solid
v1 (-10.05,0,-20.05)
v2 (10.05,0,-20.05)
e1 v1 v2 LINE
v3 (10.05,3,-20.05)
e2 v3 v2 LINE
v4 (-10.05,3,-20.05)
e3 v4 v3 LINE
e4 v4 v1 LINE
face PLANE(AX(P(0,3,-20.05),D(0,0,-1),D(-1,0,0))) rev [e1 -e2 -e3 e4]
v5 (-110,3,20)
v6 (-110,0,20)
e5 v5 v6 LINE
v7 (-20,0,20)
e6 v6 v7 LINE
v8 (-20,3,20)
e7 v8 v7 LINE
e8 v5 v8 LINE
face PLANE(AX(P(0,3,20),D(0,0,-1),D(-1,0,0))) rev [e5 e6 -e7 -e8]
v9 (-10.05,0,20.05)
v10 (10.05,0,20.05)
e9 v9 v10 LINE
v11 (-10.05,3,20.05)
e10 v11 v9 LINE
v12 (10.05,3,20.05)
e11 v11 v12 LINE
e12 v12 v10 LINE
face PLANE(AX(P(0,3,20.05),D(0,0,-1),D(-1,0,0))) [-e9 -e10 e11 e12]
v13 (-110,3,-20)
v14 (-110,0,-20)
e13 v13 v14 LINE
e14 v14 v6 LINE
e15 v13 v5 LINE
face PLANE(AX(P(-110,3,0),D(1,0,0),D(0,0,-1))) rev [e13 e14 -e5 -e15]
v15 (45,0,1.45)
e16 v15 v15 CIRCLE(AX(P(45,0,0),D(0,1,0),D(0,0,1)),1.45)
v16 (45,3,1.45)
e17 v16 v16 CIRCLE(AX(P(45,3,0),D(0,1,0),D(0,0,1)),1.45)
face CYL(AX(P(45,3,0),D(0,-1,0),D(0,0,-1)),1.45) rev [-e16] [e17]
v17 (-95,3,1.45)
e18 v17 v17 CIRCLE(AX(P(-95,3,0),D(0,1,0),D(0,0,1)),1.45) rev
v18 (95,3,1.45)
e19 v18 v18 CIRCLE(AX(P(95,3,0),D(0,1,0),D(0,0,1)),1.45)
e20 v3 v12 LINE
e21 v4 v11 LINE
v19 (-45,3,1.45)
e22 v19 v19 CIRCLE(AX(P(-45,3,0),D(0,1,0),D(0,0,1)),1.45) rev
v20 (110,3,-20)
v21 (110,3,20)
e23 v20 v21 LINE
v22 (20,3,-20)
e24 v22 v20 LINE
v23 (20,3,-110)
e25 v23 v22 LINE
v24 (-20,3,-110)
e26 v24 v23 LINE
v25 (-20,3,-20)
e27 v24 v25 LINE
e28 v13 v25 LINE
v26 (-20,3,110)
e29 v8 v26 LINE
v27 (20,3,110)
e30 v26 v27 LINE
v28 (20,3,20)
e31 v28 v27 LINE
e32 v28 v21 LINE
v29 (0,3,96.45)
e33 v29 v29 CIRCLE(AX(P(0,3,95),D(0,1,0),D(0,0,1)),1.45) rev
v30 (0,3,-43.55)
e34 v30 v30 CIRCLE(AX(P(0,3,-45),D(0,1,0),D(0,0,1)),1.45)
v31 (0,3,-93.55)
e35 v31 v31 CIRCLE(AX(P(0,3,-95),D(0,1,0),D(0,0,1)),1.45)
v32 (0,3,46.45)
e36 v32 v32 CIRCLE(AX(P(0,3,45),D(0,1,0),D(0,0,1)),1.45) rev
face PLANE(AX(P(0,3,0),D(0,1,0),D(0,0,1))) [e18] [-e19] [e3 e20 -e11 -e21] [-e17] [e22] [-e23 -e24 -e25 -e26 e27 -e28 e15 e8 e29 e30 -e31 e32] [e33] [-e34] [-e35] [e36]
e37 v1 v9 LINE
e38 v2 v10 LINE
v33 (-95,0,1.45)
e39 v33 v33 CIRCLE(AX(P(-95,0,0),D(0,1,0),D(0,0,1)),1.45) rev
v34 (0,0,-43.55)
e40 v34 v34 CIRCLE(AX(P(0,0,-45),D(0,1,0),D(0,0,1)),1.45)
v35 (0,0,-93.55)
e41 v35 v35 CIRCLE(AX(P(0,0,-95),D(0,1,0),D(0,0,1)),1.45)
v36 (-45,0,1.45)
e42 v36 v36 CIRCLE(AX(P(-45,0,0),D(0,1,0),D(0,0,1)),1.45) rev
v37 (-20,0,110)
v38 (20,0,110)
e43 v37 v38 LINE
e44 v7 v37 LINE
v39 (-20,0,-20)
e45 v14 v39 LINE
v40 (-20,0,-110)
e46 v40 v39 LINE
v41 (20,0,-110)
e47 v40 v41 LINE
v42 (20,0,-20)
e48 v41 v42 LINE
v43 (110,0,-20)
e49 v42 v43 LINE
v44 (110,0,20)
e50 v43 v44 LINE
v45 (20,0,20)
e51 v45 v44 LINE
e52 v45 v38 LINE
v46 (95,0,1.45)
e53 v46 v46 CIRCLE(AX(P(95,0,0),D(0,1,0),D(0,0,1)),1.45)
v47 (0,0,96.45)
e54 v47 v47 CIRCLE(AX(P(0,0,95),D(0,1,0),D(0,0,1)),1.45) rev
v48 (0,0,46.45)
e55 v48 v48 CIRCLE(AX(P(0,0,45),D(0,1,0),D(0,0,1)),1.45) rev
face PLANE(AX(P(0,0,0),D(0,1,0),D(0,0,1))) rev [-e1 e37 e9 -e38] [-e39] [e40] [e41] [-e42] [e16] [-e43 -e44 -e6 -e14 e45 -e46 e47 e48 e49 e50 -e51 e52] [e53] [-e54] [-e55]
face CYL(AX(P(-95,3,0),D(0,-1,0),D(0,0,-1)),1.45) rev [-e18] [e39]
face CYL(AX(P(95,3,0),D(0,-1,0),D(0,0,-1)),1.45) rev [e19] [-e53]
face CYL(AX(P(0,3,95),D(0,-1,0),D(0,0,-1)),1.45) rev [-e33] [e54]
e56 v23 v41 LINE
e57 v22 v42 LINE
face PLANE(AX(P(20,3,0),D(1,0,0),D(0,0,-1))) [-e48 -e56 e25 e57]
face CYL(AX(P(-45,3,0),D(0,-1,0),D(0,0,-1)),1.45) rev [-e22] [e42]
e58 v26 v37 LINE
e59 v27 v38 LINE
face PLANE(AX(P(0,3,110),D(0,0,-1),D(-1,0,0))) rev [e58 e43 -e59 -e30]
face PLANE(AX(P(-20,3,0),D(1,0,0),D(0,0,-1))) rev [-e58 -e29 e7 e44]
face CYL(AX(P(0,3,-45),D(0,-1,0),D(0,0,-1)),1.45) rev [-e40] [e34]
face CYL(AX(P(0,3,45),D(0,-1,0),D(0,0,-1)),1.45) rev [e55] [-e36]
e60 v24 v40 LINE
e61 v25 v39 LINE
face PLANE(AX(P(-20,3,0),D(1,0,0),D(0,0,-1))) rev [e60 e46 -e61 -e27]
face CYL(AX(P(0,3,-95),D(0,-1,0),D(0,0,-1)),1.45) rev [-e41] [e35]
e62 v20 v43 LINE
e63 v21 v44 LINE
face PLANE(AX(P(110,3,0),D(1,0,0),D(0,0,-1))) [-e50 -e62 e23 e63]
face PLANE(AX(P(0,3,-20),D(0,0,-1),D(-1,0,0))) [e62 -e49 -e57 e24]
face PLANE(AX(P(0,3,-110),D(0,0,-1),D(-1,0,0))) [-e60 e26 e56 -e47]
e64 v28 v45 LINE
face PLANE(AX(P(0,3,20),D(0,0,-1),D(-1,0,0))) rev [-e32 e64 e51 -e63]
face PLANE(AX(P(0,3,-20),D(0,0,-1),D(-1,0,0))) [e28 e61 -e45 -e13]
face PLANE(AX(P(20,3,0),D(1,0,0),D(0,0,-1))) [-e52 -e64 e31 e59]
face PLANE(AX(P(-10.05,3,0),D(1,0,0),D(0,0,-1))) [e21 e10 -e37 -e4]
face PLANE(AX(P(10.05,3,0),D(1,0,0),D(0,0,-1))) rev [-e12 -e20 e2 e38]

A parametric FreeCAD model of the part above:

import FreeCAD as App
import Part
import Sketcher

V = App.Vector


def add_polygon(sketch, points):
    """Adds a closed chain of lines whose ends are joined by coincident constraints."""
    first, n = sketch.GeometryCount, len(points)
    for a, b in zip(points, points[1:] + points[:1]):
        sketch.addGeometry(Part.LineSegment(App.Vector(*a, 0), App.Vector(*b, 0)), False)
    for i in range(n):
        sketch.addConstraint(Sketcher.Constraint("Coincident", first + i, 2, first + (i + 1) % n, 1))

doc = App.newDocument("Part")
body = doc.addObject("PartDesign::Body", "Body")

# Sketch on XZ plane
sketch1 = body.newObject("Sketcher::SketchObject", "Sketch")
sketch1.AttachmentSupport = (doc.getObject("XZ_Plane"), [""])
sketch1.MapMode = "FlatFace"
add_polygon(sketch1, [(20, -110), (-20, -110), (-20, -20), (-110, -20), (-110, 20), (-20, 20), (-20, 110), (20, 110), (20, 20), (110, 20), (110, -20), (20, -20)])  # lines 0-11
sketch1.addGeometry(Part.Circle(V(0, 95, 0), V(0, 0, 1), 1.4), False)  # 12
sketch1.addGeometry(Part.Circle(V(0, 45, 0), V(0, 0, 1), 1.4), False)  # 13
sketch1.addGeometry(Part.Circle(V(95, 0, 0), V(0, 0, 1), 1.4), False)  # 14
sketch1.addGeometry(Part.Circle(V(45, 0, 0), V(0, 0, 1), 1.4), False)  # 15
add_polygon(sketch1, [(-10.1, 20.1), (-10.1, -20.1), (10.1, -20.1), (10.1, 20.1)])  # lines 16-19
sketch1.addGeometry(Part.Circle(V(-45, 0, 0), V(0, 0, 1), 1.4), False)  # 20
sketch1.addGeometry(Part.Circle(V(0, -45, 0), V(0, 0, 1), 1.4), False)  # 21
sketch1.addGeometry(Part.Circle(V(-95, 0, 0), V(0, 0, 1), 1.4), False)  # 22
sketch1.addGeometry(Part.Circle(V(0, -95, 0), V(0, 0, 1), 1.4), False)  # 23
sketch1.addConstraint([
    Sketcher.Constraint("Horizontal", 0),
    Sketcher.Constraint("Vertical", 1),
    Sketcher.Constraint("Horizontal", 2),
    Sketcher.Constraint("Vertical", 3),
    Sketcher.Constraint("Horizontal", 4),
    Sketcher.Constraint("Vertical", 5),
    Sketcher.Constraint("Horizontal", 6),
    Sketcher.Constraint("Vertical", 7),
    Sketcher.Constraint("Horizontal", 8),
    Sketcher.Constraint("Vertical", 9),
    Sketcher.Constraint("Horizontal", 10),
    Sketcher.Constraint("Vertical", 11),
    Sketcher.Constraint("Vertical", 16),
    Sketcher.Constraint("Horizontal", 17),
    Sketcher.Constraint("Vertical", 18),
    Sketcher.Constraint("Horizontal", 19),
    Sketcher.Constraint("Equal", 12, 13),
    Sketcher.Constraint("Equal", 13, 14),
    Sketcher.Constraint("Equal", 14, 15),
    Sketcher.Constraint("Equal", 15, 20),
    Sketcher.Constraint("Equal", 20, 21),
    Sketcher.Constraint("Equal", 21, 22),
    Sketcher.Constraint("Equal", 22, 23),
    Sketcher.Constraint("Symmetric", 15, 3, 20, 3, -1, 1),
    Sketcher.Constraint("Symmetric", 13, 3, 21, 3, -1, 1),
    Sketcher.Constraint("Symmetric", 14, 3, 22, 3, -1, 1),
    Sketcher.Constraint("Symmetric", 12, 3, 23, 3, -1, 1),
    Sketcher.Constraint("Symmetric", 0, 2, 6, 2, -1, 1),
    Sketcher.Constraint("Symmetric", 2, 2, 8, 2, -1, 1),
    Sketcher.Constraint("Symmetric", 4, 2, 10, 2, -1, 1),
    Sketcher.Constraint("Symmetric", 16, 2, 18, 2, -1, 1),
    Sketcher.Constraint("Symmetric", 4, 2, 7, 2, -2),
    Sketcher.Constraint("PointOnObject", 12, 3, -2),
    Sketcher.Constraint("PointOnObject", 13, 3, -2),
    Sketcher.Constraint("PointOnObject", 14, 3, -1),
    Sketcher.Constraint("PointOnObject", 15, 3, -1),
    Sketcher.Constraint("Equal", 10, 1),
    Sketcher.Constraint("Equal", 6, 3),
    Sketcher.Constraint("Diameter", 12, 2.9),
    Sketcher.Constraint("DistanceX", 0, 2, 0, 1, 40.0),
    Sketcher.Constraint("DistanceX", 2, 2, 2, 1, 90.0),
    Sketcher.Constraint("DistanceX", 17, 1, 17, 2, 20.1),
    Sketcher.Constraint("DistanceY", 16, 2, 16, 1, 40.1),
    Sketcher.Constraint("DistanceY", -1, 1, 12, 3, 95.0),
    Sketcher.Constraint("DistanceY", -1, 1, 13, 3, 45.0),
    Sketcher.Constraint("DistanceX", -1, 1, 14, 3, 95.0),
    Sketcher.Constraint("DistanceX", -1, 1, 15, 3, 45.0),
])
pad1 = body.newObject("PartDesign::Pad", "Pad")
pad1.Profile = sketch1
pad1.Length = 3
pad1.Reversed = True

doc.recompute()
